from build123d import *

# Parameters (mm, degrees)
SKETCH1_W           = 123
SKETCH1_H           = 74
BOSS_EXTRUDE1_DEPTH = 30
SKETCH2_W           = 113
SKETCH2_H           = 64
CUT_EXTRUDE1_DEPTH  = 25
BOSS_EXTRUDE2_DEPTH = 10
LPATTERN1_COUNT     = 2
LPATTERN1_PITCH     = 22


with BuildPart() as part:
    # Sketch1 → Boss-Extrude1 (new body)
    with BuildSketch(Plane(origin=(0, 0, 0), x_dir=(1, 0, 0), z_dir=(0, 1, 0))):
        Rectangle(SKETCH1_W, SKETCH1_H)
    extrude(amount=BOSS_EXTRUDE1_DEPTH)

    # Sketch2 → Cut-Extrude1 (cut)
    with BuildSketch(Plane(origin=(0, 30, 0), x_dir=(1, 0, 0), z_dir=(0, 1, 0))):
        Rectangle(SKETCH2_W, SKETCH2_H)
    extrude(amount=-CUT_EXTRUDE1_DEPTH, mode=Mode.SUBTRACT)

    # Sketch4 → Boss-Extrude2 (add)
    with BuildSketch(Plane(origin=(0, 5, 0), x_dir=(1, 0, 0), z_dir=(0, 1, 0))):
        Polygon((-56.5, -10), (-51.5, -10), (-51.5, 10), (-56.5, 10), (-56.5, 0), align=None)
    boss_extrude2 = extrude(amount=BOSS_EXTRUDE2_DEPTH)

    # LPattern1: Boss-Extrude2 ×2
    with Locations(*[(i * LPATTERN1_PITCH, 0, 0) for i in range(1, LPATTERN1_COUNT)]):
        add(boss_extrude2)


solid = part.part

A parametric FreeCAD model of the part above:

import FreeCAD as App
import Part
import Sketcher

V = App.Vector


def add_polygon(sketch, points):
    """Adds a closed chain of lines whose ends are joined by coincident constraints."""
    first, n = sketch.GeometryCount, len(points)
    for a, b in zip(points, points[1:] + points[:1]):
        sketch.addGeometry(Part.LineSegment(App.Vector(*a, 0), App.Vector(*b, 0)), False)
    for i in range(n):
        sketch.addConstraint(Sketcher.Constraint("Coincident", first + i, 2, first + (i + 1) % n, 1))

doc = App.newDocument("Part")
params = doc.addObject("Spreadsheet::Sheet", "Params")
for row, (alias, value) in enumerate([
    ("sketch1_width", "123 mm"),
    ("sketch1_height", "74 mm"),
    ("pad1_length", "30 mm"),
    ("sketch2_width", "113 mm"),
    ("sketch2_height", "64 mm"),
    ("pocket1_length", "25 mm"),
    ("sketch3_width", "5 mm"),
    ("sketch3_height", "20 mm"),
    ("pad2_length", "10 mm"),
    ("linearpattern_pitch", "22 mm"),
], start=1):
    params.set(f"A{row}", alias)
    params.set(f"B{row}", "=" + value)
    params.setAlias(f"B{row}", alias)

body = doc.addObject("PartDesign::Body", "Body")

# Sketch on XZ plane
sketch1 = body.newObject("Sketcher::SketchObject", "Sketch")
sketch1.AttachmentSupport = (doc.getObject("XZ_Plane"), [""])
sketch1.MapMode = "FlatFace"
add_polygon(sketch1, [(-62, -37), (-62, 37), (62, 37), (62, -37)])  # lines 0-3
sketch1.addConstraint(Sketcher.Constraint("Vertical", 0))
sketch1.addConstraint(Sketcher.Constraint("Horizontal", 1))
sketch1.addConstraint(Sketcher.Constraint("Vertical", 2))
sketch1.addConstraint(Sketcher.Constraint("Horizontal", 3))
sketch1.addConstraint(Sketcher.Constraint("Symmetric", 0, 2, 2, 2, -1, 1))
sketch1.addConstraint(Sketcher.Constraint("DistanceX", 1, 1, 1, 2, 123.0))
sketch1.addConstraint(Sketcher.Constraint("DistanceY", 0, 1, 0, 2, 74.0))
sketch1.setExpression("Constraints[9]", "Params.sketch1_width")
sketch1.setExpression("Constraints[10]", "Params.sketch1_height")
pad1 = body.newObject("PartDesign::Pad", "Pad")
pad1.Profile = sketch1
pad1.setExpression("Length", "Params.pad1_length")
pad1.Reversed = True

# Sketch on XZ plane
sketch2 = body.newObject("Sketcher::SketchObject", "Sketch001")
sketch2.AttachmentSupport = (doc.getObject("XZ_Plane"), [""])
sketch2.MapMode = "FlatFace"
sketch2.AttachmentOffset = App.Placement(V(0, 0, -30), App.Rotation())
add_polygon(sketch2, [(-56, -32), (-56, 32), (56, 32), (56, -32)])  # lines 0-3
sketch2.addConstraint(Sketcher.Constraint("Vertical", 0))
sketch2.addConstraint(Sketcher.Constraint("Horizontal", 1))
sketch2.addConstraint(Sketcher.Constraint("Vertical", 2))
sketch2.addConstraint(Sketcher.Constraint("Horizontal", 3))
sketch2.addConstraint(Sketcher.Constraint("Symmetric", 0, 2, 2, 2, -1, 1))
sketch2.addConstraint(Sketcher.Constraint("DistanceX", 1, 1, 1, 2, 113.0))
sketch2.addConstraint(Sketcher.Constraint("DistanceY", 0, 1, 0, 2, 64.0))
sketch2.setExpression("Constraints[9]", "Params.sketch2_width")
sketch2.setExpression("Constraints[10]", "Params.sketch2_height")
pocket1 = body.newObject("PartDesign::Pocket", "Pocket")
pocket1.Profile = sketch2
pocket1.setExpression("Length", "Params.pocket1_length")
pocket1.Reversed = True

# Sketch on XZ plane
sketch3 = body.newObject("Sketcher::SketchObject", "Sketch002")
sketch3.AttachmentSupport = (doc.getObject("XZ_Plane"), [""])
sketch3.MapMode = "FlatFace"
sketch3.AttachmentOffset = App.Placement(V(0, 0, -5), App.Rotation())
add_polygon(sketch3, [(-56, 10), (-52, 10), (-52, -10), (-56, -10)])  # lines 0-3
sketch3.addConstraint(Sketcher.Constraint("Horizontal", 0))
sketch3.addConstraint(Sketcher.Constraint("Vertical", 1))
sketch3.addConstraint(Sketcher.Constraint("Horizontal", 2))
sketch3.addConstraint(Sketcher.Constraint("Vertical", 3))
sketch3.addConstraint(Sketcher.Constraint("DistanceX", 0, 1, 0, 2, 5.0))
sketch3.addConstraint(Sketcher.Constraint("DistanceY", 1, 2, 1, 1, 20.0))
sketch3.addConstraint(Sketcher.Constraint("DistanceY", -1, 1, 0, 2, 10.0))
sketch3.addConstraint(Sketcher.Constraint("DistanceX", 0, 2, -1, 1, 51.5))
sketch3.setExpression("Constraints[8]", "Params.sketch3_width")
sketch3.setExpression("Constraints[9]", "Params.sketch3_height")
pad2 = body.newObject("PartDesign::Pad", "Pad001")
pad2.Profile = sketch3
pad2.setExpression("Length", "Params.pad2_length")
pad2.Reversed = True
doc.recompute()

linearpattern = body.newObject("PartDesign::LinearPattern", "LinearPattern")
linearpattern.Originals = [pad2]
linearpattern.Direction = (doc.getObject("X_Axis"), [""])
linearpattern.Mode = "offset"
linearpattern.setExpression("Offset", "Params.linearpattern_pitch")
linearpattern.Occurrences = 2
body.Tip = linearpattern

doc.recompute()
